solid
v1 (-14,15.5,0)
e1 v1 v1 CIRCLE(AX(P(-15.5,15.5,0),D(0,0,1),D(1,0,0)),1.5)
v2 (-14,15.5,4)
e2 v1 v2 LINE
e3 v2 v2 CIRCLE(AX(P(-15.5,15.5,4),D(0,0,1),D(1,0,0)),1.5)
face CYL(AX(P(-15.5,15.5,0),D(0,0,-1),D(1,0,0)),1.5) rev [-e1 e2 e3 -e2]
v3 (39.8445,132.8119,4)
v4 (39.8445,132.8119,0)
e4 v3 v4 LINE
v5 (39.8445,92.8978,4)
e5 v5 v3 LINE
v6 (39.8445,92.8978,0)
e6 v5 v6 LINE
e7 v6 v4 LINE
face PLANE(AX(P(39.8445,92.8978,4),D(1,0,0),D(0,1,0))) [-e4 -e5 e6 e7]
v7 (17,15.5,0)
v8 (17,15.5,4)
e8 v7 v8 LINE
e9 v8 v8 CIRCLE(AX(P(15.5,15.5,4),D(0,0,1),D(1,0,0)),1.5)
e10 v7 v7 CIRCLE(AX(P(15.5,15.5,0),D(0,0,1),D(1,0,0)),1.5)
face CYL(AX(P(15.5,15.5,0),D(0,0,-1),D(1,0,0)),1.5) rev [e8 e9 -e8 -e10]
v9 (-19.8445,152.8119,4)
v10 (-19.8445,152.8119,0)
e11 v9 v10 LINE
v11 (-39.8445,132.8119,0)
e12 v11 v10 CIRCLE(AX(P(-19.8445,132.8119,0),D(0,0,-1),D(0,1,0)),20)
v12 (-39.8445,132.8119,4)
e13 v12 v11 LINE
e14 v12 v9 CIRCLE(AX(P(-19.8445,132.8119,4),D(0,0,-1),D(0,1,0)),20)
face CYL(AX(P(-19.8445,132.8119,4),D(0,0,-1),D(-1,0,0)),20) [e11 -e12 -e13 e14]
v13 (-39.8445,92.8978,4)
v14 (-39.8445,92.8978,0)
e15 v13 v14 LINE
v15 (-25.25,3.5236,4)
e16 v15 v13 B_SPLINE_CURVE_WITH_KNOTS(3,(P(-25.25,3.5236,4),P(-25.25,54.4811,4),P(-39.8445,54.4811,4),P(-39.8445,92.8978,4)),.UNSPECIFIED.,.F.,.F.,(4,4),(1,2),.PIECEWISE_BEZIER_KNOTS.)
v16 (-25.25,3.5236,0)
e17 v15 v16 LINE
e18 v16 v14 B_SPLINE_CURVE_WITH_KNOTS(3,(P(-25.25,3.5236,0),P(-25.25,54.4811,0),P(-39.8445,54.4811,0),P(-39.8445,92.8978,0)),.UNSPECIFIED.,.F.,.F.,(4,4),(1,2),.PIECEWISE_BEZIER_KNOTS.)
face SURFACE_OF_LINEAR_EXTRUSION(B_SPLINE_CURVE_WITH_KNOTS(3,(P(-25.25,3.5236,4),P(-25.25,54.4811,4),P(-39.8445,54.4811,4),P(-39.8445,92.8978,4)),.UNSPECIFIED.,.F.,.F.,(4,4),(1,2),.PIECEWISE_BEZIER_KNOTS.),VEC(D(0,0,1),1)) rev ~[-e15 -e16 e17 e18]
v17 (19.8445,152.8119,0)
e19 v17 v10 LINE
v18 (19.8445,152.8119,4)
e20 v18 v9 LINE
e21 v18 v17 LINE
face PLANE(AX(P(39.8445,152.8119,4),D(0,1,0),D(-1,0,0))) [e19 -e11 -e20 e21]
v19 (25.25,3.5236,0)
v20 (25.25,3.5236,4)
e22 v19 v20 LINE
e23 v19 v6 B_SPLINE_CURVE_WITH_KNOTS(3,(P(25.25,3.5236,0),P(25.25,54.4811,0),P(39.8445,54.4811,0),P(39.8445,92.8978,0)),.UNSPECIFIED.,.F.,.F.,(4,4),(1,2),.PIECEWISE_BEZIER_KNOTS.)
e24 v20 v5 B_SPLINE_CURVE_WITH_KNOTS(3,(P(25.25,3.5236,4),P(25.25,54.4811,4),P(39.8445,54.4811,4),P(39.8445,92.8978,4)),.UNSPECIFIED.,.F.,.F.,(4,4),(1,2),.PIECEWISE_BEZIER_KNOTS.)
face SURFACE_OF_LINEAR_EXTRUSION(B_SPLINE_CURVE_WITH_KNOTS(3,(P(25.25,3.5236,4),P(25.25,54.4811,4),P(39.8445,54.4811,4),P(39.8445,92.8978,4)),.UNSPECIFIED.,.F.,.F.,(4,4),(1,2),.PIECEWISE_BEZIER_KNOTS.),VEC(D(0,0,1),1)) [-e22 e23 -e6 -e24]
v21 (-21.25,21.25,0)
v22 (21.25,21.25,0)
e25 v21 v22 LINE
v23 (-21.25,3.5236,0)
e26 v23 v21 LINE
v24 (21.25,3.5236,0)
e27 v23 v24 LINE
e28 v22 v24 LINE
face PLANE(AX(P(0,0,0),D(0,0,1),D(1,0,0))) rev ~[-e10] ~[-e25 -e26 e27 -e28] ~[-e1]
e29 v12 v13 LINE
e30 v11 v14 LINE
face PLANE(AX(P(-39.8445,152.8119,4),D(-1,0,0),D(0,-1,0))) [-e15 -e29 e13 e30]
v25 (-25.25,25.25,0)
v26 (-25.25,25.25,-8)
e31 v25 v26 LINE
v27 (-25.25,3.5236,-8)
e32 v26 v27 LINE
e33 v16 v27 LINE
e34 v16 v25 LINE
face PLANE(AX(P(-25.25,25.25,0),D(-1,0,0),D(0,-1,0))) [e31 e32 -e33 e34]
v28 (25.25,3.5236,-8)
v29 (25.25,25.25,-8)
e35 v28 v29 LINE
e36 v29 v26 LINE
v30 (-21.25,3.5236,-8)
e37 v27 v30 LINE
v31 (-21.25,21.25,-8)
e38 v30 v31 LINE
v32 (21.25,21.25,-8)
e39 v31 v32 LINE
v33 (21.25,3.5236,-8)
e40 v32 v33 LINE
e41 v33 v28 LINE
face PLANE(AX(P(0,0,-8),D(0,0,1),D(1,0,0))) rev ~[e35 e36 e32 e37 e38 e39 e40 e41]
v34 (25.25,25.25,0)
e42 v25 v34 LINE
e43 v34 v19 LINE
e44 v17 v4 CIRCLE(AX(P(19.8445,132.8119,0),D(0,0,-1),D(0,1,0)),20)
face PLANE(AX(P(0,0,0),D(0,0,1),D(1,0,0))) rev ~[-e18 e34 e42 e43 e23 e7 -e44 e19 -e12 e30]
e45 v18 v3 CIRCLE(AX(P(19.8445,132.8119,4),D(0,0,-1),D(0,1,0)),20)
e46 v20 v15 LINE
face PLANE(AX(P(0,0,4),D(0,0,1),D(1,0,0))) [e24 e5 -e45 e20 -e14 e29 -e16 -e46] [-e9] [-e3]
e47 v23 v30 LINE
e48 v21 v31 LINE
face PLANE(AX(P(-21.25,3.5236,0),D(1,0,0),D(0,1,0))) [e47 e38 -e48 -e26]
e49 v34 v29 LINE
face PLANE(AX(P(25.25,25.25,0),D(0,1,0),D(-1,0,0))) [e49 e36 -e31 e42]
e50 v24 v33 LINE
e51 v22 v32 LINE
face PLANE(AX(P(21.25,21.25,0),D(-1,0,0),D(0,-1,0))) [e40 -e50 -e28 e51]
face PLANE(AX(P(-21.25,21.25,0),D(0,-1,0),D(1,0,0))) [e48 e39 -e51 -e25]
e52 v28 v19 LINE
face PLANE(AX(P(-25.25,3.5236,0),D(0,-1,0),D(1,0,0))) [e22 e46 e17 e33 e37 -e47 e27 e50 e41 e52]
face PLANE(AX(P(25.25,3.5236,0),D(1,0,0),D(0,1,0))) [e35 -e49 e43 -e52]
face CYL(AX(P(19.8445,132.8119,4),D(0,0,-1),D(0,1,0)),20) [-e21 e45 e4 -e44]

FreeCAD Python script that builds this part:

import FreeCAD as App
import Part
import Sketcher
Q = App.Units.Quantity


def edges_at(feature, points):
    """Names of the edges that pass closest to the given points."""
    edges = feature.Shape.Edges
    near = lambda p: min(range(len(edges)), key=lambda i: edges[i].distToShape(Part.Vertex(*p))[0])
    return sorted({f"Edge{near(p) + 1}" for p in points})

doc = App.newDocument("Part")
body = doc.addObject("PartDesign::Body", "Body")

# Sketch on XY plane
sketch1 = body.newObject("Sketcher::SketchObject", "Sketch")
sketch1.AttachmentSupport = (doc.getObject("XY_Plane"), [""])
sketch1.MapMode = "FlatFace"
sketch1.addGeometry([
    Part.LineSegment(App.Vector(-25.2, 3.5, 0), App.Vector(25.2, 3.5, 0)),  # 0
    Part.LineSegment(App.Vector(25.2, 3.5, 0), App.Vector(25.2, 25.2, 0)),  # 1
    Part.LineSegment(App.Vector(25.2, 25.2, 0), App.Vector(-25.2, 25.2, 0)),  # 2
    Part.LineSegment(App.Vector(-25.2, 25.2, 0), App.Vector(-25.2, 3.5, 0)),  # 3
    Part.Circle(App.Vector(15.5, 15.5, 0), App.Vector(0, 0, 1), 1.5),  # 4
    Part.Circle(App.Vector(-15.5, 15.5, 0), App.Vector(0, 0, 1), 1.5),  # 5
], False)
sketch1.addConstraint([
    Sketcher.Constraint("Coincident", 0, 2, 1, 1),
    Sketcher.Constraint("Coincident", 1, 2, 2, 1),
    Sketcher.Constraint("Coincident", 2, 2, 3, 1),
    Sketcher.Constraint("Coincident", 3, 2, 0, 1),
    Sketcher.Constraint("Horizontal", 0),
    Sketcher.Constraint("Vertical", 1),
    Sketcher.Constraint("Horizontal", 2),
    Sketcher.Constraint("Vertical", 3),
    Sketcher.Constraint("Equal", 4, 5),
    Sketcher.Constraint("Symmetric", 4, 3, 5, 3, -2),
    Sketcher.Constraint("Diameter", 4, Q("3 mm")),
    Sketcher.Constraint("DistanceX", -1, 1, 4, 3, Q("15.5 mm")),
    Sketcher.Constraint("DistanceY", -1, 1, 4, 3, Q("15.5 mm")),
    Sketcher.Constraint("DistanceX", 0, 1, 0, 2, Q("50.5 mm")),
    Sketcher.Constraint("DistanceX", -1, 1, 0, 2, Q("25.25 mm")),
    Sketcher.Constraint("DistanceY", -1, 1, 1, 2, Q("25.25 mm")),
    Sketcher.Constraint("DistanceY", 1, 1, 1, 2, Q("21.7264 mm")),
])
pad1 = body.newObject("PartDesign::Pad", "Pad")
pad1.Profile = sketch1
pad1.Length = 4

# Sketch on XY plane
sketch2 = body.newObject("Sketcher::SketchObject", "Sketch001")
sketch2.AttachmentSupport = (doc.getObject("XY_Plane"), [""])
sketch2.MapMode = "FlatFace"
sketch2.addGeometry(Part.Circle(App.Vector(0, 0, 0), App.Vector(0, 0, 1), 12), False)
sketch2.addConstraint([
    Sketcher.Constraint("Coincident", 0, 3, -1, 1),
    Sketcher.Constraint("Diameter", 0, Q("25 mm")),
])
pocket1 = body.newObject("PartDesign::Pocket", "Pocket")
pocket1.Profile = sketch2
pocket1.Length = 4
pocket1.Reversed = True

# Sketch on XY plane
sketch3 = body.newObject("Sketcher::SketchObject", "Sketch002")
sketch3.AttachmentSupport = (doc.getObject("XY_Plane"), [""])
sketch3.MapMode = "FlatFace"
sketch3.addGeometry([
    Part.LineSegment(App.Vector(-21.2, 3.5, 0), App.Vector(-21.2, 21.2, 0)),  # 0
    Part.LineSegment(App.Vector(-21.2, 21.2, 0), App.Vector(21.2, 21.2, 0)),  # 1
    Part.LineSegment(App.Vector(21.2, 21.2, 0), App.Vector(21.2, 3.5, 0)),  # 2
    Part.LineSegment(App.Vector(21.2, 3.5, 0), App.Vector(25.2, 3.5, 0)),  # 3
    Part.LineSegment(App.Vector(25.2, 3.5, 0), App.Vector(25.2, 25.2, 0)),  # 4
    Part.LineSegment(App.Vector(25.2, 25.2, 0), App.Vector(-25.2, 25.2, 0)),  # 5
    Part.LineSegment(App.Vector(-25.2, 25.2, 0), App.Vector(-25.2, 3.5, 0)),  # 6
    Part.LineSegment(App.Vector(-25.2, 3.5, 0), App.Vector(-21.2, 3.5, 0)),  # 7
], False)
sketch3.addConstraint([
    Sketcher.Constraint("Coincident", 0, 2, 1, 1),
    Sketcher.Constraint("Coincident", 1, 2, 2, 1),
    Sketcher.Constraint("Coincident", 2, 2, 3, 1),
    Sketcher.Constraint("Coincident", 3, 2, 4, 1),
    Sketcher.Constraint("Coincident", 4, 2, 5, 1),
    Sketcher.Constraint("Coincident", 5, 2, 6, 1),
    Sketcher.Constraint("Coincident", 6, 2, 7, 1),
    Sketcher.Constraint("Coincident", 7, 2, 0, 1),
    Sketcher.Constraint("Vertical", 0),
    Sketcher.Constraint("Horizontal", 1),
    Sketcher.Constraint("Vertical", 2),
    Sketcher.Constraint("Horizontal", 3),
    Sketcher.Constraint("Vertical", 4),
    Sketcher.Constraint("Horizontal", 5),
    Sketcher.Constraint("Vertical", 6),
    Sketcher.Constraint("Horizontal", 7),
    Sketcher.Constraint("Symmetric", 3, 2, 6, 2, -2),
    Sketcher.Constraint("Equal", 3, 7),
    Sketcher.Constraint("DistanceX", 3, 1, 3, 2, Q("4 mm")),
    Sketcher.Constraint("DistanceX", 1, 1, 1, 2, Q("42.5 mm")),
    Sketcher.Constraint("DistanceY", 1, 2, 4, 2, Q("4 mm")),
    Sketcher.Constraint("DistanceY", -1, 1, 0, 2, Q("21.25 mm")),
    Sketcher.Constraint("DistanceY", 0, 1, 0, 2, Q("17.7264 mm")),
])
pad2 = body.newObject("PartDesign::Pad", "Pad001")
pad2.Profile = sketch3
pad2.Length = 8
pad2.Reversed = True

# Sketch on XY plane
sketch4 = body.newObject("Sketcher::SketchObject", "Sketch003")
sketch4.AttachmentSupport = (doc.getObject("XY_Plane"), [""])
sketch4.MapMode = "FlatFace"
sketch4.AttachmentOffset = App.Placement(App.Vector(0, 0, 4), App.Rotation())
sketch4.addGeometry([
    Part.BSplineCurve([App.Vector(-25.25, 3.5236, 0), App.Vector(-25.25, 54.4811, 0), App.Vector(-39.8445, 54.4811, 0), App.Vector(-39.8445, 92.8978, 0)], [4, 4], [1, 2], False, 3, [1, 1, 1, 1], False),  # 0
    Part.LineSegment(App.Vector(-25.25, 3.5236, 0), App.Vector(25.25, 3.5236, 0)),  # 1
    Part.BSplineCurve([App.Vector(25.25, 3.5236, 0), App.Vector(25.25, 54.4811, 0), App.Vector(39.8445, 54.4811, 0), App.Vector(39.8445, 92.8978, 0)], [4, 4], [1, 2], False, 3, [1, 1, 1, 1], False),  # 2
    Part.LineSegment(App.Vector(39.8445, 92.8978, 0), App.Vector(39.8445, 152.8119, 0)),  # 3
    Part.LineSegment(App.Vector(39.8445, 152.8119, 0), App.Vector(-39.8445, 152.8119, 0)),  # 4
    Part.LineSegment(App.Vector(-39.8445, 152.8119, 0), App.Vector(-39.8445, 92.8978, 0)),  # 5
    Part.Circle(App.Vector(-15.5, 15.5, 0), App.Vector(0, 0, 1), 1.5),  # 6
    Part.Circle(App.Vector(15.5, 15.5, 0), App.Vector(0, 0, 1), 1.5),  # 7
], False)
sketch4.addConstraint([
    Sketcher.Constraint("Block", 0),
    Sketcher.Constraint("Block", 2),
    Sketcher.Constraint("Coincident", 0, 1, 1, 1),
    Sketcher.Constraint("Coincident", 1, 2, 2, 1),
    Sketcher.Constraint("Coincident", 2, 2, 3, 1),
    Sketcher.Constraint("Coincident", 3, 2, 4, 1),
    Sketcher.Constraint("Coincident", 4, 2, 5, 1),
    Sketcher.Constraint("Coincident", 5, 2, 0, 2),
    Sketcher.Constraint("Vertical", 3),
    Sketcher.Constraint("Horizontal", 4),
    Sketcher.Constraint("Vertical", 5),
    Sketcher.Constraint("Equal", 6, 7),
    Sketcher.Constraint("Symmetric", 6, 3, 7, 3, -2),
    Sketcher.Constraint("Diameter", 6, Q("3 mm")),
    Sketcher.Constraint("DistanceX", 6, 3, 7, 3, Q("31 mm")),
    Sketcher.Constraint("DistanceY", -1, 1, 6, 3, Q("15.5 mm")),
    Sketcher.Constraint("DistanceY", 3, 1, 3, 2, Q("59.914 mm")),
])
pad3 = body.newObject("PartDesign::Pad", "Pad002")
pad3.Profile = sketch4
pad3.Length = 4
pad3.Reversed = True
doc.recompute()

fillet = body.newObject("PartDesign::Fillet", "Fillet")
fillet.Base = (pad3, edges_at(pad3, [(-39.844, 152.812, 2), (39.844, 152.812, 2)]))
fillet.Radius = 20

doc.recompute()
